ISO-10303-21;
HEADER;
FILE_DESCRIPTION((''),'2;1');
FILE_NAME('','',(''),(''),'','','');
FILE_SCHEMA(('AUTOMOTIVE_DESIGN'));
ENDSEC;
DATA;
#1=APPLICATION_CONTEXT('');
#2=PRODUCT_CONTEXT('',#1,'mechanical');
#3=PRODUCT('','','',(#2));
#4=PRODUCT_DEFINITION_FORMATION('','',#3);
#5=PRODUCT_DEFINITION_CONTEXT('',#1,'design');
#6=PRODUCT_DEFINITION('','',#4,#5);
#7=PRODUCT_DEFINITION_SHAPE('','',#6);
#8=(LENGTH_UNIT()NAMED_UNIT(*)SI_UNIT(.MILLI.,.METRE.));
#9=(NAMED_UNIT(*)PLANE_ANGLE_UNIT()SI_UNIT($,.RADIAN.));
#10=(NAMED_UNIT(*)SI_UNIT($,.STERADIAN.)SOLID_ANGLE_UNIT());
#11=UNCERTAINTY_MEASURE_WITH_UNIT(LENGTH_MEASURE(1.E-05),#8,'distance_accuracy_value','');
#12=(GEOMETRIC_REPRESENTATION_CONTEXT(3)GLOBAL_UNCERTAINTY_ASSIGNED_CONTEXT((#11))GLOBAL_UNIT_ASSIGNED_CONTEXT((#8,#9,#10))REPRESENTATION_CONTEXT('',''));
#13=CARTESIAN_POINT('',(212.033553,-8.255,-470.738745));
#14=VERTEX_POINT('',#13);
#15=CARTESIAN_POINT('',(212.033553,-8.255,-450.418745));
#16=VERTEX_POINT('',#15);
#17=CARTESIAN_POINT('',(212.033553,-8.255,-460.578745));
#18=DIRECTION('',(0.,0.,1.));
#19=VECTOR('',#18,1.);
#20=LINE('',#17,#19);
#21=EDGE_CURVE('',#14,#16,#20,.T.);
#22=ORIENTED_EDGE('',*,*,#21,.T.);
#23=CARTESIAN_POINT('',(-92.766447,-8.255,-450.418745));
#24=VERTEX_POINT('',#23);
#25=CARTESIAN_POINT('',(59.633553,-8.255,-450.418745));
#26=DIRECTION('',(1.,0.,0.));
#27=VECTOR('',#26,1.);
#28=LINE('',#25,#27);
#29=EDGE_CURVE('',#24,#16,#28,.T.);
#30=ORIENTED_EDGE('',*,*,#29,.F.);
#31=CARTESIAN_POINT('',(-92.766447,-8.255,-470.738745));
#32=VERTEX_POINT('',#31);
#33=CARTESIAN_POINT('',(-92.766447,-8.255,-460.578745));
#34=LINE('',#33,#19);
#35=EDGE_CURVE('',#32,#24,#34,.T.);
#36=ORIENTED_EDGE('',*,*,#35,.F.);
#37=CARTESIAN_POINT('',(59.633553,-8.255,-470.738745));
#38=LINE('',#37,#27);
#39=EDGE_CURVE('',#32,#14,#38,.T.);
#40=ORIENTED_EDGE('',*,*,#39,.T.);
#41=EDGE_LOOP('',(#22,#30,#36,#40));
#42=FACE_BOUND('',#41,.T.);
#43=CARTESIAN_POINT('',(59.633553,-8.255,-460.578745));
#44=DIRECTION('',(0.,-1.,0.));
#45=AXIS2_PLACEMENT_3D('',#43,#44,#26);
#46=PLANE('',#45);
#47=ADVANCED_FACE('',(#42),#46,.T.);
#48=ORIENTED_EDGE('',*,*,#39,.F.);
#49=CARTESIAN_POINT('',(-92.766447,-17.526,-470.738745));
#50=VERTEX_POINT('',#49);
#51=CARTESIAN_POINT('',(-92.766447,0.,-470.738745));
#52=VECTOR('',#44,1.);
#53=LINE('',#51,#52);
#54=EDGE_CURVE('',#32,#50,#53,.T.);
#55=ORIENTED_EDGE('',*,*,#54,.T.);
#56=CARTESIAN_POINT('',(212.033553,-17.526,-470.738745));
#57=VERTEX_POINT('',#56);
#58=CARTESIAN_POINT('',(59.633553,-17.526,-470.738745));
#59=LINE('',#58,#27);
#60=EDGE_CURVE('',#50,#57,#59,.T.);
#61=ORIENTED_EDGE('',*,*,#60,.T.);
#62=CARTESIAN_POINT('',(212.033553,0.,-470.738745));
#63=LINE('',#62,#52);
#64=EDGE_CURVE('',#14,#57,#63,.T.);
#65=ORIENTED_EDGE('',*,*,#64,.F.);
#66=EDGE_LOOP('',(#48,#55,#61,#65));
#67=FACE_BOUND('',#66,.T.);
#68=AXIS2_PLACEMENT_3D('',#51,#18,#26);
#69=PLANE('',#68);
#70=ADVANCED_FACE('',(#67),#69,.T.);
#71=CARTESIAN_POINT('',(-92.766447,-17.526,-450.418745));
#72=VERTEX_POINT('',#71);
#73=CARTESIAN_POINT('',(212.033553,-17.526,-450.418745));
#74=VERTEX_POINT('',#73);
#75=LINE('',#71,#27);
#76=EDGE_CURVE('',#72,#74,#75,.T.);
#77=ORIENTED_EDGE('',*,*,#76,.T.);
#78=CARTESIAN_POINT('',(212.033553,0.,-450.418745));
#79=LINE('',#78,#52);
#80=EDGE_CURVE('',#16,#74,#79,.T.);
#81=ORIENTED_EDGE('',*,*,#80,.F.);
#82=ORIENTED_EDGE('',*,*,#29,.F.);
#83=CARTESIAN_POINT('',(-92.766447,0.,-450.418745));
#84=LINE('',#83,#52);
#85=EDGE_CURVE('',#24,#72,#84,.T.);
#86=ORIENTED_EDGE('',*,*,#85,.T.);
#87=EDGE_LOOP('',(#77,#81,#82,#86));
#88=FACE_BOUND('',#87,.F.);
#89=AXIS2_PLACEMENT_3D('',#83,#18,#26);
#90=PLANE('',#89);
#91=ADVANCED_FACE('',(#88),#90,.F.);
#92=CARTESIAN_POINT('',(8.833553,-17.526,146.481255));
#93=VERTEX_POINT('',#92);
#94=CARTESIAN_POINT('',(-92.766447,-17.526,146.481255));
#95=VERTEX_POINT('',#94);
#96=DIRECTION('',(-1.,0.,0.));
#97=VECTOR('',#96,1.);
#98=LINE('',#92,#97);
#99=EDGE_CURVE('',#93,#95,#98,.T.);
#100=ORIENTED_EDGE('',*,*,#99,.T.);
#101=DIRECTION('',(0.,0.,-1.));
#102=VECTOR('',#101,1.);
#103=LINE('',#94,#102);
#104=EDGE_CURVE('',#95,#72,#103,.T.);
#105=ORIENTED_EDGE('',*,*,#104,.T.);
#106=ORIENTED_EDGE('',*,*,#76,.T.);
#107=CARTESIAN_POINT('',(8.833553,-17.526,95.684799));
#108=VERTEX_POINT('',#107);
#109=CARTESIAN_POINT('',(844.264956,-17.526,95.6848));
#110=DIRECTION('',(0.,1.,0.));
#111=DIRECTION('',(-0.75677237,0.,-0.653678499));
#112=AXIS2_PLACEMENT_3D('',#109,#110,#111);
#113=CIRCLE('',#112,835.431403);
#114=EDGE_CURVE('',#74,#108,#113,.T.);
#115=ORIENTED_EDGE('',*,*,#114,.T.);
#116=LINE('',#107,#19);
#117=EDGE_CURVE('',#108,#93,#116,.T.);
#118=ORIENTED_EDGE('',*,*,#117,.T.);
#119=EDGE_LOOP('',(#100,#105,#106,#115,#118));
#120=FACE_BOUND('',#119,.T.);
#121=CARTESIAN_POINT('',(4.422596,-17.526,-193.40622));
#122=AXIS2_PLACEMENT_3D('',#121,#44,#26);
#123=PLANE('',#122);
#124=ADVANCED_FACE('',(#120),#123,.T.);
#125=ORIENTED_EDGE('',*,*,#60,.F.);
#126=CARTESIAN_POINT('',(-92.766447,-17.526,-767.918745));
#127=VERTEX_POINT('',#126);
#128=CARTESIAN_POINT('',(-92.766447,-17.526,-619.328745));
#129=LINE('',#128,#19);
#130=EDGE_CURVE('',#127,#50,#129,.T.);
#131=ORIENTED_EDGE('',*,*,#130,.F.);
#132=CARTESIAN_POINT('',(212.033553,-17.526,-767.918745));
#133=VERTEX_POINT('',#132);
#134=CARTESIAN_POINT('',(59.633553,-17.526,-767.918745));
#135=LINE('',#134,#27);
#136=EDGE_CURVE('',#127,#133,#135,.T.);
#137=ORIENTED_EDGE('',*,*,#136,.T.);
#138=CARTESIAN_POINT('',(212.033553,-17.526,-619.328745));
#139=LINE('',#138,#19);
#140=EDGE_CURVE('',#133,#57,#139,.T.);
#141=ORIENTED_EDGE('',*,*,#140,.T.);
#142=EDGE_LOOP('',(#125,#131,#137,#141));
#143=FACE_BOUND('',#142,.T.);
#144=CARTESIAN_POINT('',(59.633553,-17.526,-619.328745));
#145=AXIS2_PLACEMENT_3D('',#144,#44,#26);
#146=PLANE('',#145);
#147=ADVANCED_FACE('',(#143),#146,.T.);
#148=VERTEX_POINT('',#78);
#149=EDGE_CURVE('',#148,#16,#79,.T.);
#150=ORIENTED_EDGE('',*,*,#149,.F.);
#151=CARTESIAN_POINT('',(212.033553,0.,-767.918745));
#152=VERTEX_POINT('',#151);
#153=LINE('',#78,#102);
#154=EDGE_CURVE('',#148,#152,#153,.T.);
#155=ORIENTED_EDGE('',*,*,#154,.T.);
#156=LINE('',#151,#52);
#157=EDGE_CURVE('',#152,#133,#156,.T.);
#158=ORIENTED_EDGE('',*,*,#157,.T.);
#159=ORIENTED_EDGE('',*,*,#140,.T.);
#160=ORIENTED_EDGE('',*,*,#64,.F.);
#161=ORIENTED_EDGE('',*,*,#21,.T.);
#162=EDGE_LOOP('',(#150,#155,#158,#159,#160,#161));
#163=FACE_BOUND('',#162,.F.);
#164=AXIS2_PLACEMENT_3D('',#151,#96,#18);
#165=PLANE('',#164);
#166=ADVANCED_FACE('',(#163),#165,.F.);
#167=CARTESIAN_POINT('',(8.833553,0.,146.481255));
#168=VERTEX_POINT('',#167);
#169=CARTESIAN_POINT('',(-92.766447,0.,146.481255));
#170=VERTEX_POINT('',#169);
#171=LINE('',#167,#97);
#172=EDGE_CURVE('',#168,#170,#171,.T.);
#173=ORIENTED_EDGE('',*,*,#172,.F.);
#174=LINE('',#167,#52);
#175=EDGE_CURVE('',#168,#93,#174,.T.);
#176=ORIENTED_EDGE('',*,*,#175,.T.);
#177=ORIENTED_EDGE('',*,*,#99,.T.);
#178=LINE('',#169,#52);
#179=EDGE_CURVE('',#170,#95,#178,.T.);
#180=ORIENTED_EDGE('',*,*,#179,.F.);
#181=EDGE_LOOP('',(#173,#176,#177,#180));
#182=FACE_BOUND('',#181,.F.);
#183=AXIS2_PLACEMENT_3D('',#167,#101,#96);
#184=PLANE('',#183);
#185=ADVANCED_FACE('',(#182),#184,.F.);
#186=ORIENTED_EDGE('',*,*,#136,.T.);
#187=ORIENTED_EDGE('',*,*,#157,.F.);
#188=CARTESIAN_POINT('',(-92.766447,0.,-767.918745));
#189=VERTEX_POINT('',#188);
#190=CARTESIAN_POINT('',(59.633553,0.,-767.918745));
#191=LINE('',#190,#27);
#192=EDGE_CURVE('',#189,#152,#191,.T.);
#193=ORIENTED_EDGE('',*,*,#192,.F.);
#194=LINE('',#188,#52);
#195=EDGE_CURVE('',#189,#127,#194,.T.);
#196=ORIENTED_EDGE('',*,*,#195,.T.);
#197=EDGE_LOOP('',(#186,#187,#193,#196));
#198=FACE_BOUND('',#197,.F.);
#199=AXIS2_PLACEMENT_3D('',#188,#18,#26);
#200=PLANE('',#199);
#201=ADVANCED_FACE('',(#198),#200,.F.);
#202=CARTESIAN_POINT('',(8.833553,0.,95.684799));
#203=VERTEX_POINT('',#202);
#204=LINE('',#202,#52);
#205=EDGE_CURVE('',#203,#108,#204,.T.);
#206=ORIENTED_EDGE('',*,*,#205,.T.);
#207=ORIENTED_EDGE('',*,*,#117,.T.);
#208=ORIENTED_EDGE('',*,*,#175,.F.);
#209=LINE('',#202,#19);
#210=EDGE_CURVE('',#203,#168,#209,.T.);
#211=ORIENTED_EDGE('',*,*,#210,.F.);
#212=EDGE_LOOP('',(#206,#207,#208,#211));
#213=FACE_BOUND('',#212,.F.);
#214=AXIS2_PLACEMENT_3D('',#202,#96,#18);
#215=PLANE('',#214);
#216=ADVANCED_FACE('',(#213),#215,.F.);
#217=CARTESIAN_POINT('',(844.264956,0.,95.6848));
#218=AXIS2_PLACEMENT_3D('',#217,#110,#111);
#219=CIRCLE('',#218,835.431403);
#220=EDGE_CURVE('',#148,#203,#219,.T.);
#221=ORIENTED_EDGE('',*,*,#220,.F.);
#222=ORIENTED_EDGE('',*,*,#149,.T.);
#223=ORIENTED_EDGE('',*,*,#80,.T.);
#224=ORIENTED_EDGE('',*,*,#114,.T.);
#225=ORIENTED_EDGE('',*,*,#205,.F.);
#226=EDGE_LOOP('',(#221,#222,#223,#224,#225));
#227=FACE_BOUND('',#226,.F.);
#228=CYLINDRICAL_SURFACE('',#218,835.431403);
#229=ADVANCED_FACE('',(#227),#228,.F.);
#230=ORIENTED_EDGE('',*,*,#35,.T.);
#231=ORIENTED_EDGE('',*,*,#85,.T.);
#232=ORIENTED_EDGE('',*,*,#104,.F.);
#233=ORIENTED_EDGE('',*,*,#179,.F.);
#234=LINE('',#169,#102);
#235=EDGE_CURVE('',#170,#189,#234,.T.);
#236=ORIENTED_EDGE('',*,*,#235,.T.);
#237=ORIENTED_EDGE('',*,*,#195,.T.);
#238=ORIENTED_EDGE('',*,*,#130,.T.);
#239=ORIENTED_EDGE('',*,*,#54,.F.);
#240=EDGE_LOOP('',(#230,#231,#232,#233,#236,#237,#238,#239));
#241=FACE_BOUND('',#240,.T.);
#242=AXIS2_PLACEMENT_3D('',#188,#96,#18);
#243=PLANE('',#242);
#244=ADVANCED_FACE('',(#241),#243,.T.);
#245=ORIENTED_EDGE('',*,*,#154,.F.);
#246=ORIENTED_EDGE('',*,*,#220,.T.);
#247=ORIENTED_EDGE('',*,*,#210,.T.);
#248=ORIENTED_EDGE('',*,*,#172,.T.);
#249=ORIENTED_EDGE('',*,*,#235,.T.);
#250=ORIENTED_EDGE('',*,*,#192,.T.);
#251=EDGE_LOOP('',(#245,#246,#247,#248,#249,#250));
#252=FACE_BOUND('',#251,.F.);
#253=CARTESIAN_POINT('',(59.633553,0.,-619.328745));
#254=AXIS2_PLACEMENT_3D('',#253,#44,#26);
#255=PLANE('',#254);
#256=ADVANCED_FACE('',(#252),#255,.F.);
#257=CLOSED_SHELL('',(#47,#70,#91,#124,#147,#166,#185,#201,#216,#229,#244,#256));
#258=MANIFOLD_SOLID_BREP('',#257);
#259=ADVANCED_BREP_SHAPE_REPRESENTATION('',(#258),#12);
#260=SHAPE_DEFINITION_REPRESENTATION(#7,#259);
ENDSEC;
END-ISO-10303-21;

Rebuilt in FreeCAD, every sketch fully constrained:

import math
import FreeCAD as App
import Part
import Sketcher

V = App.Vector
Q = App.Units.Quantity


def add_polygon(sketch, points):
    """Adds a closed chain of lines whose ends are joined by coincident constraints."""
    first, n = sketch.GeometryCount, len(points)
    for a, b in zip(points, points[1:] + points[:1]):
        sketch.addGeometry(Part.LineSegment(App.Vector(*a, 0), App.Vector(*b, 0)), False)
    for i in range(n):
        sketch.addConstraint(Sketcher.Constraint("Coincident", first + i, 2, first + (i + 1) % n, 1))

doc = App.newDocument("Part")
body = doc.addObject("PartDesign::Body", "Body")

sketch1 = doc.addObject("Sketcher::SketchObject", "Sketch")
body.addObject(sketch1)
sketch1.AttachmentSupport = (doc.XZ_Plane, [""])
sketch1.MapMode = "FlatFace"
sketch1.addGeometry([
    Part.LineSegment(V(9, 146, 0), V(-93, 146, 0)),
    Part.LineSegment(V(-93, 146, 0), V(-93, -450, 0)),
    Part.LineSegment(V(-93, -450, 0), V(212, -450, 0)),
    Part.ArcOfCircle(Part.Circle(V(844, 96, 0), V(0, 0, 1), 835), math.radians(-180), math.radians(-139)),
    Part.LineSegment(V(9, 96, 0), V(9, 146, 0)),
], False)
sketch1.addConstraint([
    Sketcher.Constraint("Coincident", 0, 2, 1, 1),
    Sketcher.Constraint("Coincident", 1, 2, 2, 1),
    Sketcher.Constraint("Coincident", 2, 2, 3, 2),
    Sketcher.Constraint("Tangent", 3, 1, 4, 1),
    Sketcher.Constraint("Coincident", 4, 2, 0, 1),
    Sketcher.Constraint("Horizontal", 0),
    Sketcher.Constraint("Vertical", 1),
    Sketcher.Constraint("Horizontal", 2),
    Sketcher.Constraint("Vertical", 4),
    Sketcher.Constraint("DistanceX", 0, 2, 0, 1, Q("4 in")),
    Sketcher.Constraint("DistanceX", 2, 1, 2, 2, Q("12 in")),
    Sketcher.Constraint("DistanceY", 1, 2, 1, 1, Q("23.5 in")),
    Sketcher.Constraint("Radius", 3, Q("32.8910001 in")),
    Sketcher.Constraint("DistanceY", -1, 1, 3, 3, Q("95.6848 mm")),
    Sketcher.Constraint("DistanceX", -1, 1, 3, 3, Q("844.264956 mm")),
])
pad1 = doc.addObject("PartDesign::Pad", "Pad")
body.addObject(pad1)
pad1.Profile = sketch1
pad1.Length = Q("0.69 in")

sketch2 = doc.addObject("Sketcher::SketchObject", "Sketch001")
body.addObject(sketch2)
sketch2.AttachmentSupport = (doc.XZ_Plane, [""])
sketch2.MapMode = "FlatFace"
add_polygon(sketch2, [(-93, -450), (-93, -471), (212, -471), (212, -450)])
sketch2.addConstraint([
    Sketcher.Constraint("Vertical", 0),
    Sketcher.Constraint("Horizontal", 1),
    Sketcher.Constraint("Vertical", 2),
    Sketcher.Constraint("Horizontal", 3),
    Sketcher.Constraint("DistanceX", 1, 1, 1, 2, Q("12 in")),
    Sketcher.Constraint("DistanceY", 0, 2, 0, 1, Q("0.8 in")),
    Sketcher.Constraint("DistanceX", 0, 2, -1, 1, Q("92.766447 mm")),
    Sketcher.Constraint("DistanceY", 0, 2, -1, 1, Q("470.738745 mm")),
])
pad2 = doc.addObject("PartDesign::Pad", "Pad001")
body.addObject(pad2)
pad2.Profile = sketch2
pad2.Length = Q("0.325 in")

sketch3 = doc.addObject("Sketcher::SketchObject", "Sketch002")
body.addObject(sketch3)
sketch3.AttachmentSupport = (doc.XZ_Plane, [""])
sketch3.MapMode = "FlatFace"
add_polygon(sketch3, [(-93, -471), (-93, -768), (212, -768), (212, -471)])
sketch3.addConstraint([
    Sketcher.Constraint("Vertical", 0),
    Sketcher.Constraint("Horizontal", 1),
    Sketcher.Constraint("Vertical", 2),
    Sketcher.Constraint("Horizontal", 3),
    Sketcher.Constraint("DistanceX", 1, 1, 1, 2, Q("12 in")),
    Sketcher.Constraint("DistanceY", 0, 2, 0, 1, Q("11.7 in")),
    Sketcher.Constraint("DistanceX", 0, 2, -1, 1, Q("92.766447 mm")),
    Sketcher.Constraint("DistanceY", 0, 2, -1, 1, Q("767.918745 mm")),
])
pad3 = doc.addObject("PartDesign::Pad", "Pad002")
body.addObject(pad3)
pad3.Profile = sketch3
pad3.Length = Q("0.69 in")

doc.recompute()
